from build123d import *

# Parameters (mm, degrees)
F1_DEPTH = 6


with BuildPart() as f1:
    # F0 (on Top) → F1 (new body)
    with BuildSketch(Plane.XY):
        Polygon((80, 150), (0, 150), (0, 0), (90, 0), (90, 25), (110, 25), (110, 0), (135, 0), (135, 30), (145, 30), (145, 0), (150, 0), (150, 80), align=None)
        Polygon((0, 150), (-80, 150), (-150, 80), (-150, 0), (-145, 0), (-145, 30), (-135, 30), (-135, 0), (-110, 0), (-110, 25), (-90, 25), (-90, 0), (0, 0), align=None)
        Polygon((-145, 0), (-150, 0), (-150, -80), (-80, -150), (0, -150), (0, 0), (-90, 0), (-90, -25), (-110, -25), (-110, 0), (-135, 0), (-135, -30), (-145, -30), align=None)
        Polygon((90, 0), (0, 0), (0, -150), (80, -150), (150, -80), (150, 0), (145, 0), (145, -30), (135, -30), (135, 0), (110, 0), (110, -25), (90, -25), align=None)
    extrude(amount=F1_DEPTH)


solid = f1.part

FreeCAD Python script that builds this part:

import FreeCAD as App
import Part
import Sketcher

V = App.Vector
Q = App.Units.Quantity


def add_polygon(sketch, points):
    """Adds a closed chain of lines whose ends are joined by coincident constraints."""
    first, n = sketch.GeometryCount, len(points)
    for a, b in zip(points, points[1:] + points[:1]):
        sketch.addGeometry(Part.LineSegment(App.Vector(*a, 0), App.Vector(*b, 0)), False)
    for i in range(n):
        sketch.addConstraint(Sketcher.Constraint("Coincident", first + i, 2, first + (i + 1) % n, 1))

doc = App.newDocument("Part")
params = doc.addObject("Spreadsheet::Sheet", "Params")
for row, (alias, value) in enumerate([
    ("sketch1_width", "160 mm"),
    ("sketch1_width2", "20 mm"),
    ("sketch1_width3", "10 mm"),
    ("sketch1_height", "50 mm"),
    ("sketch1_height2", "60 mm"),
    ("pad1_length", "6 mm"),
], start=1):
    params.set(f"A{row}", alias)
    params.set(f"B{row}", "=" + value)
    params.setAlias(f"B{row}", alias)

body = doc.addObject("PartDesign::Body", "Body")

# Sketch on XY plane
sketch1 = body.newObject("Sketcher::SketchObject", "Sketch")
sketch1.AttachmentSupport = (doc.getObject("XY_Plane"), [""])
sketch1.MapMode = "FlatFace"
add_polygon(sketch1, [(80, 150), (-80, 150), (-150, 80), (-150, -80), (-80, -150), (80, -150), (150, -80), (150, 80)])  # lines 0-7
add_polygon(sketch1, [(90, 25), (110, 25), (110, -25), (90, -25)])  # lines 8-11
add_polygon(sketch1, [(135, 30), (145, 30), (145, -30), (135, -30)])  # lines 12-15
add_polygon(sketch1, [(-145, 30), (-135, 30), (-135, -30), (-145, -30)])  # lines 16-19
add_polygon(sketch1, [(-110, 25), (-90, 25), (-90, -25), (-110, -25)])  # lines 20-23
sketch1.addConstraint(Sketcher.Constraint("Horizontal", 0))
sketch1.addConstraint(Sketcher.Constraint("Vertical", 2))
sketch1.addConstraint(Sketcher.Constraint("Horizontal", 4))
sketch1.addConstraint(Sketcher.Constraint("Vertical", 6))
sketch1.addConstraint(Sketcher.Constraint("Horizontal", 8))
sketch1.addConstraint(Sketcher.Constraint("Vertical", 9))
sketch1.addConstraint(Sketcher.Constraint("Horizontal", 10))
sketch1.addConstraint(Sketcher.Constraint("Vertical", 11))
sketch1.addConstraint(Sketcher.Constraint("Horizontal", 12))
sketch1.addConstraint(Sketcher.Constraint("Vertical", 13))
sketch1.addConstraint(Sketcher.Constraint("Horizontal", 14))
sketch1.addConstraint(Sketcher.Constraint("Vertical", 15))
sketch1.addConstraint(Sketcher.Constraint("Horizontal", 16))
sketch1.addConstraint(Sketcher.Constraint("Vertical", 17))
sketch1.addConstraint(Sketcher.Constraint("Horizontal", 18))
sketch1.addConstraint(Sketcher.Constraint("Vertical", 19))
sketch1.addConstraint(Sketcher.Constraint("Horizontal", 20))
sketch1.addConstraint(Sketcher.Constraint("Vertical", 21))
sketch1.addConstraint(Sketcher.Constraint("Horizontal", 22))
sketch1.addConstraint(Sketcher.Constraint("Vertical", 23))
sketch1.addConstraint(Sketcher.Constraint("Symmetric", 0, 2, 4, 2, -1, 1))
sketch1.addConstraint(Sketcher.Constraint("Symmetric", 1, 2, 5, 2, -1, 1))
sketch1.addConstraint(Sketcher.Constraint("Symmetric", 14, 2, 16, 2, -1, 1))
sketch1.addConstraint(Sketcher.Constraint("Symmetric", 12, 2, 18, 2, -1, 1))
sketch1.addConstraint(Sketcher.Constraint("Symmetric", 10, 2, 20, 2, -1, 1))
sketch1.addConstraint(Sketcher.Constraint("Symmetric", 8, 2, 22, 2, -1, 1))
sketch1.addConstraint(Sketcher.Constraint("Perpendicular", 1, 3))
sketch1.addConstraint(Sketcher.Constraint("Perpendicular", 5, 7))
sketch1.addConstraint(Sketcher.Constraint("Horizontal", 2, 2, 5, 2))
sketch1.addConstraint(Sketcher.Constraint("Horizontal", 1, 2, 6, 2))
sketch1.addConstraint(Sketcher.Constraint("Horizontal", 15, 2, 16, 2))
sketch1.addConstraint(Sketcher.Constraint("Horizontal", 11, 2, 20, 2))
sketch1.addConstraint(Sketcher.Constraint("Vertical", 0, 2, 3, 2))
sketch1.addConstraint(Sketcher.Constraint("Equal", 4, 2))
sketch1.addConstraint(Sketcher.Constraint("DistanceX", 0, 2, 0, 1, Q("160 mm")))
sketch1.addConstraint(Sketcher.Constraint("DistanceX", 8, 1, 8, 2, Q("20 mm")))
sketch1.addConstraint(Sketcher.Constraint("DistanceX", 12, 1, 12, 2, Q("10 mm")))
sketch1.addConstraint(Sketcher.Constraint("DistanceY", 9, 2, 9, 1, Q("50 mm")))
sketch1.addConstraint(Sketcher.Constraint("DistanceY", 13, 2, 13, 1, Q("60 mm")))
sketch1.addConstraint(Sketcher.Constraint("DistanceY", -1, 1, 0, 2, Q("150 mm")))
sketch1.addConstraint(Sketcher.Constraint("DistanceX", -1, 1, 8, 2, Q("110 mm")))
sketch1.addConstraint(Sketcher.Constraint("DistanceX", -1, 1, 12, 2, Q("145 mm")))
sketch1.setExpression("Constraints[58]", "Params.sketch1_width")
sketch1.setExpression("Constraints[59]", "Params.sketch1_width2")
sketch1.setExpression("Constraints[60]", "Params.sketch1_width3")
sketch1.setExpression("Constraints[61]", "Params.sketch1_height")
sketch1.setExpression("Constraints[62]", "Params.sketch1_height2")
pad1 = body.newObject("PartDesign::Pad", "Pad")
pad1.Profile = sketch1
pad1.setExpression("Length", "Params.pad1_length")

doc.recompute()
